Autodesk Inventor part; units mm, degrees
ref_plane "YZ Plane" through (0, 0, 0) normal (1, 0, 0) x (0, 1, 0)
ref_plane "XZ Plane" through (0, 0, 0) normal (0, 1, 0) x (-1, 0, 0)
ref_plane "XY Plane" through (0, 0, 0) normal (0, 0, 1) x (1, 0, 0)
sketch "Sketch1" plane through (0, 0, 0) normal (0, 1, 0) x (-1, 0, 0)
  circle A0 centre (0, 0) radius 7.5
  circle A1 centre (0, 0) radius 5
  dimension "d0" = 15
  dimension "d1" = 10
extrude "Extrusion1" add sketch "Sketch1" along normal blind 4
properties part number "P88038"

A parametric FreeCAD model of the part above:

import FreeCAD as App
import Part
import Sketcher

V = App.Vector

doc = App.newDocument("Part")
body = doc.addObject("PartDesign::Body", "Body")

# Sketch on XZ plane
sketch1 = body.newObject("Sketcher::SketchObject", "Sketch")
sketch1.AttachmentSupport = (doc.getObject("XZ_Plane"), [""])
sketch1.MapMode = "FlatFace"
sketch1.addGeometry(Part.Circle(V(0, 0, 0), V(0, 0, 1), 8), False)
sketch1.addGeometry(Part.Circle(V(0, 0, 0), V(0, 0, 1), 5), False)
sketch1.addConstraint(Sketcher.Constraint("Coincident", 0, 3, -1, 1))
sketch1.addConstraint(Sketcher.Constraint("Coincident", 1, 3, -1, 1))
sketch1.addConstraint(Sketcher.Constraint("Diameter", 0, 15.0))
sketch1.addConstraint(Sketcher.Constraint("Diameter", 1, 10.0))
pad1 = body.newObject("PartDesign::Pad", "Pad")
pad1.Profile = sketch1
pad1.Length = 4
pad1.Reversed = True

doc.recompute()
